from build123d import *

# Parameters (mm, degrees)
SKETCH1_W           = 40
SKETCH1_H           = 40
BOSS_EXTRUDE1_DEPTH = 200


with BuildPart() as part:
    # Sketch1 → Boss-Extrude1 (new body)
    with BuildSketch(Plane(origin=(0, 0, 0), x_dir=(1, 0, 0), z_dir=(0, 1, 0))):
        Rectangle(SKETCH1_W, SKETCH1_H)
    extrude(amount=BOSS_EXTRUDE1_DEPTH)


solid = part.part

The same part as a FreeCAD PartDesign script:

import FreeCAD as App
import Part
import Sketcher
from FreeCAD import Vector
Q = App.Units.Quantity

doc = App.newDocument("Part")
body = doc.addObject("PartDesign::Body", "Body")

sketch1 = doc.addObject("Sketcher::SketchObject", "Sketch")
body.addObject(sketch1)
sketch1.AttachmentSupport = (doc.XZ_Plane, [""])
sketch1.MapMode = "FlatFace"
sketch1.addGeometry([
    Part.LineSegment(Vector(-20, -20, 0), Vector(-20, 20, 0)),
    Part.LineSegment(Vector(-20, 20, 0), Vector(20, 20, 0)),
    Part.LineSegment(Vector(20, 20, 0), Vector(20, -20, 0)),
    Part.LineSegment(Vector(20, -20, 0), Vector(-20, -20, 0)),
], False)
sketch1.addConstraint([
    Sketcher.Constraint("Coincident", 0, 2, 1, 1),
    Sketcher.Constraint("Coincident", 1, 2, 2, 1),
    Sketcher.Constraint("Coincident", 2, 2, 3, 1),
    Sketcher.Constraint("Coincident", 3, 2, 0, 1),
    Sketcher.Constraint("Vertical", 0),
    Sketcher.Constraint("Horizontal", 1),
    Sketcher.Constraint("Vertical", 2),
    Sketcher.Constraint("Horizontal", 3),
    Sketcher.Constraint("Symmetric", 0, 2, 2, 2, -1, 1),
    Sketcher.Constraint("Equal", 3, 0),
    Sketcher.Constraint("DistanceX", 1, 1, 1, 2, Q("40 mm")),
])
pad1 = doc.addObject("PartDesign::Pad", "Pad")
body.addObject(pad1)
pad1.Profile = sketch1
pad1.Length = 200
pad1.Reversed = True

doc.recompute()
